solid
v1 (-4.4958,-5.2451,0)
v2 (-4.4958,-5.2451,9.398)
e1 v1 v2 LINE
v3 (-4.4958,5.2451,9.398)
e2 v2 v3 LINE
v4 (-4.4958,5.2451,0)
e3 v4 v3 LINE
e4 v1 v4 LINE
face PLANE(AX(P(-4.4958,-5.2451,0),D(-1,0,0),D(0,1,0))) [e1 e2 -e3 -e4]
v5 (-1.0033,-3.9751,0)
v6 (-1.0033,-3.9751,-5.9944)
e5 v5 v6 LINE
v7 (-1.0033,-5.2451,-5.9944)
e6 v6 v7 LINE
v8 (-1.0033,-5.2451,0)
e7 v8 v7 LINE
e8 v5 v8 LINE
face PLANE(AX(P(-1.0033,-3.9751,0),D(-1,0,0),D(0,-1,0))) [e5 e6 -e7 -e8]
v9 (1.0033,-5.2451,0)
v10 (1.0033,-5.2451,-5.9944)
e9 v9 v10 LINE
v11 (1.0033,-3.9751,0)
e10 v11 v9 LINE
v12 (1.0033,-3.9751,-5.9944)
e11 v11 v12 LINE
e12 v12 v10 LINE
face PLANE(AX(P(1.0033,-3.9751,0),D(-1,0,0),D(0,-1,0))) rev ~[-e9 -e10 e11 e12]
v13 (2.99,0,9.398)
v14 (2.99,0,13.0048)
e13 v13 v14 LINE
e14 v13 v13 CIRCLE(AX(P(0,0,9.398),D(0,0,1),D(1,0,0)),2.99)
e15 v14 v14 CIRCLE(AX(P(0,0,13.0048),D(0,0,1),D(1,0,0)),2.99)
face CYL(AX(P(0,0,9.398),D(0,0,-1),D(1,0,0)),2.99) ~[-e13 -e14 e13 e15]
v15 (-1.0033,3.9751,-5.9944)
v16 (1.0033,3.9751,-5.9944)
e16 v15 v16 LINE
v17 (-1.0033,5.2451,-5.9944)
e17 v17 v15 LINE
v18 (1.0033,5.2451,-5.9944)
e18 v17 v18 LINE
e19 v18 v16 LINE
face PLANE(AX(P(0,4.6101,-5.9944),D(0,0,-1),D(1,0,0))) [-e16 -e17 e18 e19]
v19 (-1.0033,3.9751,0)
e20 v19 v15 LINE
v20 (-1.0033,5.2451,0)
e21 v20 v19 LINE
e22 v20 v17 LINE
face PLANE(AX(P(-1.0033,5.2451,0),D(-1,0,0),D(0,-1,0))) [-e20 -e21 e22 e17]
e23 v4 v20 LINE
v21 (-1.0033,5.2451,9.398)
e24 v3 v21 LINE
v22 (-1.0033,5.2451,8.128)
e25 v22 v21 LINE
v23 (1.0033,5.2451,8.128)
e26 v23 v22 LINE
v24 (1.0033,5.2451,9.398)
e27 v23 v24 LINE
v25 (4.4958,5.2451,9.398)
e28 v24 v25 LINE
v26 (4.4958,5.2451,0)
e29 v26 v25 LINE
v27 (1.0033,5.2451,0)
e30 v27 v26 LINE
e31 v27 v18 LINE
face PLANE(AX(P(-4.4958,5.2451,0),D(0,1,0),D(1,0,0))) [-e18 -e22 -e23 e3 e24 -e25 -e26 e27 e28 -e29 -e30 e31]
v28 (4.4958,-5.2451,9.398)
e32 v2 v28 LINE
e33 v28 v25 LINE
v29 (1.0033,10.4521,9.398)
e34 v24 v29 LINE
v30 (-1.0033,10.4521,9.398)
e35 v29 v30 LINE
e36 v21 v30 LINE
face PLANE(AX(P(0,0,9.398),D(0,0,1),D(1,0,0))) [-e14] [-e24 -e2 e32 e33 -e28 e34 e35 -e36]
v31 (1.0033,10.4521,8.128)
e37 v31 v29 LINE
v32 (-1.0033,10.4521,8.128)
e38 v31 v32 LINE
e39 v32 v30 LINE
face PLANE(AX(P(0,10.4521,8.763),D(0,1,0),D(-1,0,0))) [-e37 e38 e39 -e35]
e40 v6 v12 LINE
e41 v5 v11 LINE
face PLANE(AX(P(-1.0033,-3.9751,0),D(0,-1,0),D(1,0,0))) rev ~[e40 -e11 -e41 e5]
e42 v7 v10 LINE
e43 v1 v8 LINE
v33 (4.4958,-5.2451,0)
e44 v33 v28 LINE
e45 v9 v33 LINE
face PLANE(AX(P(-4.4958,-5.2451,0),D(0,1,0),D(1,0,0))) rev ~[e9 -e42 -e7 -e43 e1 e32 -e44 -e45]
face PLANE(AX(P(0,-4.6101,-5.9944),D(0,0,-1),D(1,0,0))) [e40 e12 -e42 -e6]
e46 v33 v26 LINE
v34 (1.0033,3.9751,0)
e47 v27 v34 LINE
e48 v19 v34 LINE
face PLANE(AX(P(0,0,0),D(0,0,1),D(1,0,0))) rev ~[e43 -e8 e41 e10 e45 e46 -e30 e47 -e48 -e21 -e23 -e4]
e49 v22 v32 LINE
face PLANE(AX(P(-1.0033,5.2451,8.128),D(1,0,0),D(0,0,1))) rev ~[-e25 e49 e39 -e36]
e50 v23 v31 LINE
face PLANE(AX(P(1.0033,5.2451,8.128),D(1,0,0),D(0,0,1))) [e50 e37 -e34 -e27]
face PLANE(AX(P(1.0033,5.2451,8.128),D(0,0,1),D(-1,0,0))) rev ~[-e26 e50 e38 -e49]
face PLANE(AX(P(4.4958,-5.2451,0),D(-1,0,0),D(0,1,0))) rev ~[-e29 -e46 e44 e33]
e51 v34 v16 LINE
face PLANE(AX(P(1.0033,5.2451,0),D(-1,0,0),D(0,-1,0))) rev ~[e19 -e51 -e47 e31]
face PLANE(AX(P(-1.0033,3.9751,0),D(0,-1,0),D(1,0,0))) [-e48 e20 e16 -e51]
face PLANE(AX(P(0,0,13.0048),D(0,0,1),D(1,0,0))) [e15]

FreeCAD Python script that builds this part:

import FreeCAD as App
import Part
import Sketcher

V = App.Vector
Q = App.Units.Quantity


def add_polygon(sketch, points):
    """Adds a closed chain of lines whose ends are joined by coincident constraints."""
    first, n = sketch.GeometryCount, len(points)
    for a, b in zip(points, points[1:] + points[:1]):
        sketch.addGeometry(Part.LineSegment(App.Vector(*a, 0), App.Vector(*b, 0)), False)
    for i in range(n):
        sketch.addConstraint(Sketcher.Constraint("Coincident", first + i, 2, first + (i + 1) % n, 1))

doc = App.newDocument("Part")
body = doc.addObject("PartDesign::Body", "Body")

sketch1 = body.newObject("Sketcher::SketchObject", "Sketch")
sketch1.AttachmentSupport = (doc.getObject("XY_Plane"), [""])
sketch1.MapMode = "FlatFace"
add_polygon(sketch1, [(-4.4958, 5.2451), (-4.4958, -5.2451), (4.4958, -5.2451), (4.4958, 5.2451)])
sketch1.addConstraint([
    Sketcher.Constraint("Vertical", 0),
    Sketcher.Constraint("Horizontal", 1),
    Sketcher.Constraint("Vertical", 2),
    Sketcher.Constraint("Horizontal", 3),
    Sketcher.Constraint("Symmetric", 0, 2, 2, 2, -1, 1),
    Sketcher.Constraint("DistanceX", 1, 1, 1, 2, Q("0.354 in")),
    Sketcher.Constraint("DistanceY", 0, 2, 0, 1, Q("0.413 in")),
])
pad1 = body.newObject("PartDesign::Pad", "Pad")
pad1.Profile = sketch1
pad1.Length = Q("0.37 in")

sketch2 = body.newObject("Sketcher::SketchObject", "Sketch001")
sketch2.AttachmentSupport = (doc.getObject("XY_Plane"), [""])
sketch2.MapMode = "FlatFace"
sketch2.AttachmentOffset = App.Placement(V(0, 0, 0.37 * 25.4), App.Rotation())
sketch2.addGeometry(Part.Circle(V(0, 0, 0), V(0, 0, 1), 2.99), False)
sketch2.addConstraint([
    Sketcher.Constraint("Coincident", 0, 3, -1, 1),
    Sketcher.Constraint("Diameter", 0, 5.98),
])
pad2 = body.newObject("PartDesign::Pad", "Pad001")
pad2.Profile = sketch2
pad2.Length = Q("0.142 in")

sketch3 = body.newObject("Sketcher::SketchObject", "Sketch002")
sketch3.AttachmentSupport = (doc.getObject("XZ_Plane"), [""])
sketch3.MapMode = "FlatFace"
sketch3.AttachmentOffset = App.Placement(V(0, 0, -0.2065 * 25.4), App.Rotation())
add_polygon(sketch3, [(1.0033, 9.398), (1.0033, 8.128), (-1.0033, 8.128), (-1.0033, 9.398)])
sketch3.addConstraint([
    Sketcher.Constraint("Vertical", 0),
    Sketcher.Constraint("Horizontal", 1),
    Sketcher.Constraint("Vertical", 2),
    Sketcher.Constraint("Horizontal", 3),
    Sketcher.Constraint("DistanceY", 0, 2, 0, 1, Q("0.05 in")),
    Sketcher.Constraint("DistanceX", 1, 2, 1, 1, Q("0.079 in")),
    Sketcher.Constraint("DistanceY", -1, 1, 0, 2, Q("0.32 in")),
    Sketcher.Constraint("DistanceX", -1, 1, 0, 2, Q("0.0395 in")),
])
pad3 = body.newObject("PartDesign::Pad", "Pad002")
pad3.Profile = sketch3
pad3.Length = Q("0.205 in")
pad3.Reversed = True

sketch4 = body.newObject("Sketcher::SketchObject", "Sketch003")
sketch4.AttachmentSupport = (doc.getObject("XY_Plane"), [""])
sketch4.MapMode = "FlatFace"
add_polygon(sketch4, [(-1.0033, -5.2451), (-1.0033, -3.9751), (1.0033, -3.9751), (1.0033, -5.2451)])
add_polygon(sketch4, [(-1.0033, 3.9751), (-1.0033, 5.2451), (1.0033, 5.2451), (1.0033, 3.9751)])
sketch4.addConstraint([
    Sketcher.Constraint("Vertical", 0),
    Sketcher.Constraint("Horizontal", 1),
    Sketcher.Constraint("Vertical", 2),
    Sketcher.Constraint("Horizontal", 3),
    Sketcher.Constraint("Vertical", 4),
    Sketcher.Constraint("Horizontal", 5),
    Sketcher.Constraint("Vertical", 6),
    Sketcher.Constraint("Horizontal", 7),
    Sketcher.Constraint("Symmetric", 2, 2, 4, 2, -1, 1),
    Sketcher.Constraint("Symmetric", 0, 2, 6, 2, -1, 1),
    Sketcher.Constraint("Vertical", 3, 2, 4, 2),
    Sketcher.Constraint("DistanceY", 0, 1, 0, 2, Q("0.05 in")),
    Sketcher.Constraint("DistanceX", 1, 1, 1, 2, Q("0.079 in")),
    Sketcher.Constraint("DistanceY", 0, 2, 4, 2, Q("0.363 in")),
])
pad4 = body.newObject("PartDesign::Pad", "Pad003")
pad4.Profile = sketch4
pad4.Length = Q("0.236 in")
pad4.Reversed = True

doc.recompute()
